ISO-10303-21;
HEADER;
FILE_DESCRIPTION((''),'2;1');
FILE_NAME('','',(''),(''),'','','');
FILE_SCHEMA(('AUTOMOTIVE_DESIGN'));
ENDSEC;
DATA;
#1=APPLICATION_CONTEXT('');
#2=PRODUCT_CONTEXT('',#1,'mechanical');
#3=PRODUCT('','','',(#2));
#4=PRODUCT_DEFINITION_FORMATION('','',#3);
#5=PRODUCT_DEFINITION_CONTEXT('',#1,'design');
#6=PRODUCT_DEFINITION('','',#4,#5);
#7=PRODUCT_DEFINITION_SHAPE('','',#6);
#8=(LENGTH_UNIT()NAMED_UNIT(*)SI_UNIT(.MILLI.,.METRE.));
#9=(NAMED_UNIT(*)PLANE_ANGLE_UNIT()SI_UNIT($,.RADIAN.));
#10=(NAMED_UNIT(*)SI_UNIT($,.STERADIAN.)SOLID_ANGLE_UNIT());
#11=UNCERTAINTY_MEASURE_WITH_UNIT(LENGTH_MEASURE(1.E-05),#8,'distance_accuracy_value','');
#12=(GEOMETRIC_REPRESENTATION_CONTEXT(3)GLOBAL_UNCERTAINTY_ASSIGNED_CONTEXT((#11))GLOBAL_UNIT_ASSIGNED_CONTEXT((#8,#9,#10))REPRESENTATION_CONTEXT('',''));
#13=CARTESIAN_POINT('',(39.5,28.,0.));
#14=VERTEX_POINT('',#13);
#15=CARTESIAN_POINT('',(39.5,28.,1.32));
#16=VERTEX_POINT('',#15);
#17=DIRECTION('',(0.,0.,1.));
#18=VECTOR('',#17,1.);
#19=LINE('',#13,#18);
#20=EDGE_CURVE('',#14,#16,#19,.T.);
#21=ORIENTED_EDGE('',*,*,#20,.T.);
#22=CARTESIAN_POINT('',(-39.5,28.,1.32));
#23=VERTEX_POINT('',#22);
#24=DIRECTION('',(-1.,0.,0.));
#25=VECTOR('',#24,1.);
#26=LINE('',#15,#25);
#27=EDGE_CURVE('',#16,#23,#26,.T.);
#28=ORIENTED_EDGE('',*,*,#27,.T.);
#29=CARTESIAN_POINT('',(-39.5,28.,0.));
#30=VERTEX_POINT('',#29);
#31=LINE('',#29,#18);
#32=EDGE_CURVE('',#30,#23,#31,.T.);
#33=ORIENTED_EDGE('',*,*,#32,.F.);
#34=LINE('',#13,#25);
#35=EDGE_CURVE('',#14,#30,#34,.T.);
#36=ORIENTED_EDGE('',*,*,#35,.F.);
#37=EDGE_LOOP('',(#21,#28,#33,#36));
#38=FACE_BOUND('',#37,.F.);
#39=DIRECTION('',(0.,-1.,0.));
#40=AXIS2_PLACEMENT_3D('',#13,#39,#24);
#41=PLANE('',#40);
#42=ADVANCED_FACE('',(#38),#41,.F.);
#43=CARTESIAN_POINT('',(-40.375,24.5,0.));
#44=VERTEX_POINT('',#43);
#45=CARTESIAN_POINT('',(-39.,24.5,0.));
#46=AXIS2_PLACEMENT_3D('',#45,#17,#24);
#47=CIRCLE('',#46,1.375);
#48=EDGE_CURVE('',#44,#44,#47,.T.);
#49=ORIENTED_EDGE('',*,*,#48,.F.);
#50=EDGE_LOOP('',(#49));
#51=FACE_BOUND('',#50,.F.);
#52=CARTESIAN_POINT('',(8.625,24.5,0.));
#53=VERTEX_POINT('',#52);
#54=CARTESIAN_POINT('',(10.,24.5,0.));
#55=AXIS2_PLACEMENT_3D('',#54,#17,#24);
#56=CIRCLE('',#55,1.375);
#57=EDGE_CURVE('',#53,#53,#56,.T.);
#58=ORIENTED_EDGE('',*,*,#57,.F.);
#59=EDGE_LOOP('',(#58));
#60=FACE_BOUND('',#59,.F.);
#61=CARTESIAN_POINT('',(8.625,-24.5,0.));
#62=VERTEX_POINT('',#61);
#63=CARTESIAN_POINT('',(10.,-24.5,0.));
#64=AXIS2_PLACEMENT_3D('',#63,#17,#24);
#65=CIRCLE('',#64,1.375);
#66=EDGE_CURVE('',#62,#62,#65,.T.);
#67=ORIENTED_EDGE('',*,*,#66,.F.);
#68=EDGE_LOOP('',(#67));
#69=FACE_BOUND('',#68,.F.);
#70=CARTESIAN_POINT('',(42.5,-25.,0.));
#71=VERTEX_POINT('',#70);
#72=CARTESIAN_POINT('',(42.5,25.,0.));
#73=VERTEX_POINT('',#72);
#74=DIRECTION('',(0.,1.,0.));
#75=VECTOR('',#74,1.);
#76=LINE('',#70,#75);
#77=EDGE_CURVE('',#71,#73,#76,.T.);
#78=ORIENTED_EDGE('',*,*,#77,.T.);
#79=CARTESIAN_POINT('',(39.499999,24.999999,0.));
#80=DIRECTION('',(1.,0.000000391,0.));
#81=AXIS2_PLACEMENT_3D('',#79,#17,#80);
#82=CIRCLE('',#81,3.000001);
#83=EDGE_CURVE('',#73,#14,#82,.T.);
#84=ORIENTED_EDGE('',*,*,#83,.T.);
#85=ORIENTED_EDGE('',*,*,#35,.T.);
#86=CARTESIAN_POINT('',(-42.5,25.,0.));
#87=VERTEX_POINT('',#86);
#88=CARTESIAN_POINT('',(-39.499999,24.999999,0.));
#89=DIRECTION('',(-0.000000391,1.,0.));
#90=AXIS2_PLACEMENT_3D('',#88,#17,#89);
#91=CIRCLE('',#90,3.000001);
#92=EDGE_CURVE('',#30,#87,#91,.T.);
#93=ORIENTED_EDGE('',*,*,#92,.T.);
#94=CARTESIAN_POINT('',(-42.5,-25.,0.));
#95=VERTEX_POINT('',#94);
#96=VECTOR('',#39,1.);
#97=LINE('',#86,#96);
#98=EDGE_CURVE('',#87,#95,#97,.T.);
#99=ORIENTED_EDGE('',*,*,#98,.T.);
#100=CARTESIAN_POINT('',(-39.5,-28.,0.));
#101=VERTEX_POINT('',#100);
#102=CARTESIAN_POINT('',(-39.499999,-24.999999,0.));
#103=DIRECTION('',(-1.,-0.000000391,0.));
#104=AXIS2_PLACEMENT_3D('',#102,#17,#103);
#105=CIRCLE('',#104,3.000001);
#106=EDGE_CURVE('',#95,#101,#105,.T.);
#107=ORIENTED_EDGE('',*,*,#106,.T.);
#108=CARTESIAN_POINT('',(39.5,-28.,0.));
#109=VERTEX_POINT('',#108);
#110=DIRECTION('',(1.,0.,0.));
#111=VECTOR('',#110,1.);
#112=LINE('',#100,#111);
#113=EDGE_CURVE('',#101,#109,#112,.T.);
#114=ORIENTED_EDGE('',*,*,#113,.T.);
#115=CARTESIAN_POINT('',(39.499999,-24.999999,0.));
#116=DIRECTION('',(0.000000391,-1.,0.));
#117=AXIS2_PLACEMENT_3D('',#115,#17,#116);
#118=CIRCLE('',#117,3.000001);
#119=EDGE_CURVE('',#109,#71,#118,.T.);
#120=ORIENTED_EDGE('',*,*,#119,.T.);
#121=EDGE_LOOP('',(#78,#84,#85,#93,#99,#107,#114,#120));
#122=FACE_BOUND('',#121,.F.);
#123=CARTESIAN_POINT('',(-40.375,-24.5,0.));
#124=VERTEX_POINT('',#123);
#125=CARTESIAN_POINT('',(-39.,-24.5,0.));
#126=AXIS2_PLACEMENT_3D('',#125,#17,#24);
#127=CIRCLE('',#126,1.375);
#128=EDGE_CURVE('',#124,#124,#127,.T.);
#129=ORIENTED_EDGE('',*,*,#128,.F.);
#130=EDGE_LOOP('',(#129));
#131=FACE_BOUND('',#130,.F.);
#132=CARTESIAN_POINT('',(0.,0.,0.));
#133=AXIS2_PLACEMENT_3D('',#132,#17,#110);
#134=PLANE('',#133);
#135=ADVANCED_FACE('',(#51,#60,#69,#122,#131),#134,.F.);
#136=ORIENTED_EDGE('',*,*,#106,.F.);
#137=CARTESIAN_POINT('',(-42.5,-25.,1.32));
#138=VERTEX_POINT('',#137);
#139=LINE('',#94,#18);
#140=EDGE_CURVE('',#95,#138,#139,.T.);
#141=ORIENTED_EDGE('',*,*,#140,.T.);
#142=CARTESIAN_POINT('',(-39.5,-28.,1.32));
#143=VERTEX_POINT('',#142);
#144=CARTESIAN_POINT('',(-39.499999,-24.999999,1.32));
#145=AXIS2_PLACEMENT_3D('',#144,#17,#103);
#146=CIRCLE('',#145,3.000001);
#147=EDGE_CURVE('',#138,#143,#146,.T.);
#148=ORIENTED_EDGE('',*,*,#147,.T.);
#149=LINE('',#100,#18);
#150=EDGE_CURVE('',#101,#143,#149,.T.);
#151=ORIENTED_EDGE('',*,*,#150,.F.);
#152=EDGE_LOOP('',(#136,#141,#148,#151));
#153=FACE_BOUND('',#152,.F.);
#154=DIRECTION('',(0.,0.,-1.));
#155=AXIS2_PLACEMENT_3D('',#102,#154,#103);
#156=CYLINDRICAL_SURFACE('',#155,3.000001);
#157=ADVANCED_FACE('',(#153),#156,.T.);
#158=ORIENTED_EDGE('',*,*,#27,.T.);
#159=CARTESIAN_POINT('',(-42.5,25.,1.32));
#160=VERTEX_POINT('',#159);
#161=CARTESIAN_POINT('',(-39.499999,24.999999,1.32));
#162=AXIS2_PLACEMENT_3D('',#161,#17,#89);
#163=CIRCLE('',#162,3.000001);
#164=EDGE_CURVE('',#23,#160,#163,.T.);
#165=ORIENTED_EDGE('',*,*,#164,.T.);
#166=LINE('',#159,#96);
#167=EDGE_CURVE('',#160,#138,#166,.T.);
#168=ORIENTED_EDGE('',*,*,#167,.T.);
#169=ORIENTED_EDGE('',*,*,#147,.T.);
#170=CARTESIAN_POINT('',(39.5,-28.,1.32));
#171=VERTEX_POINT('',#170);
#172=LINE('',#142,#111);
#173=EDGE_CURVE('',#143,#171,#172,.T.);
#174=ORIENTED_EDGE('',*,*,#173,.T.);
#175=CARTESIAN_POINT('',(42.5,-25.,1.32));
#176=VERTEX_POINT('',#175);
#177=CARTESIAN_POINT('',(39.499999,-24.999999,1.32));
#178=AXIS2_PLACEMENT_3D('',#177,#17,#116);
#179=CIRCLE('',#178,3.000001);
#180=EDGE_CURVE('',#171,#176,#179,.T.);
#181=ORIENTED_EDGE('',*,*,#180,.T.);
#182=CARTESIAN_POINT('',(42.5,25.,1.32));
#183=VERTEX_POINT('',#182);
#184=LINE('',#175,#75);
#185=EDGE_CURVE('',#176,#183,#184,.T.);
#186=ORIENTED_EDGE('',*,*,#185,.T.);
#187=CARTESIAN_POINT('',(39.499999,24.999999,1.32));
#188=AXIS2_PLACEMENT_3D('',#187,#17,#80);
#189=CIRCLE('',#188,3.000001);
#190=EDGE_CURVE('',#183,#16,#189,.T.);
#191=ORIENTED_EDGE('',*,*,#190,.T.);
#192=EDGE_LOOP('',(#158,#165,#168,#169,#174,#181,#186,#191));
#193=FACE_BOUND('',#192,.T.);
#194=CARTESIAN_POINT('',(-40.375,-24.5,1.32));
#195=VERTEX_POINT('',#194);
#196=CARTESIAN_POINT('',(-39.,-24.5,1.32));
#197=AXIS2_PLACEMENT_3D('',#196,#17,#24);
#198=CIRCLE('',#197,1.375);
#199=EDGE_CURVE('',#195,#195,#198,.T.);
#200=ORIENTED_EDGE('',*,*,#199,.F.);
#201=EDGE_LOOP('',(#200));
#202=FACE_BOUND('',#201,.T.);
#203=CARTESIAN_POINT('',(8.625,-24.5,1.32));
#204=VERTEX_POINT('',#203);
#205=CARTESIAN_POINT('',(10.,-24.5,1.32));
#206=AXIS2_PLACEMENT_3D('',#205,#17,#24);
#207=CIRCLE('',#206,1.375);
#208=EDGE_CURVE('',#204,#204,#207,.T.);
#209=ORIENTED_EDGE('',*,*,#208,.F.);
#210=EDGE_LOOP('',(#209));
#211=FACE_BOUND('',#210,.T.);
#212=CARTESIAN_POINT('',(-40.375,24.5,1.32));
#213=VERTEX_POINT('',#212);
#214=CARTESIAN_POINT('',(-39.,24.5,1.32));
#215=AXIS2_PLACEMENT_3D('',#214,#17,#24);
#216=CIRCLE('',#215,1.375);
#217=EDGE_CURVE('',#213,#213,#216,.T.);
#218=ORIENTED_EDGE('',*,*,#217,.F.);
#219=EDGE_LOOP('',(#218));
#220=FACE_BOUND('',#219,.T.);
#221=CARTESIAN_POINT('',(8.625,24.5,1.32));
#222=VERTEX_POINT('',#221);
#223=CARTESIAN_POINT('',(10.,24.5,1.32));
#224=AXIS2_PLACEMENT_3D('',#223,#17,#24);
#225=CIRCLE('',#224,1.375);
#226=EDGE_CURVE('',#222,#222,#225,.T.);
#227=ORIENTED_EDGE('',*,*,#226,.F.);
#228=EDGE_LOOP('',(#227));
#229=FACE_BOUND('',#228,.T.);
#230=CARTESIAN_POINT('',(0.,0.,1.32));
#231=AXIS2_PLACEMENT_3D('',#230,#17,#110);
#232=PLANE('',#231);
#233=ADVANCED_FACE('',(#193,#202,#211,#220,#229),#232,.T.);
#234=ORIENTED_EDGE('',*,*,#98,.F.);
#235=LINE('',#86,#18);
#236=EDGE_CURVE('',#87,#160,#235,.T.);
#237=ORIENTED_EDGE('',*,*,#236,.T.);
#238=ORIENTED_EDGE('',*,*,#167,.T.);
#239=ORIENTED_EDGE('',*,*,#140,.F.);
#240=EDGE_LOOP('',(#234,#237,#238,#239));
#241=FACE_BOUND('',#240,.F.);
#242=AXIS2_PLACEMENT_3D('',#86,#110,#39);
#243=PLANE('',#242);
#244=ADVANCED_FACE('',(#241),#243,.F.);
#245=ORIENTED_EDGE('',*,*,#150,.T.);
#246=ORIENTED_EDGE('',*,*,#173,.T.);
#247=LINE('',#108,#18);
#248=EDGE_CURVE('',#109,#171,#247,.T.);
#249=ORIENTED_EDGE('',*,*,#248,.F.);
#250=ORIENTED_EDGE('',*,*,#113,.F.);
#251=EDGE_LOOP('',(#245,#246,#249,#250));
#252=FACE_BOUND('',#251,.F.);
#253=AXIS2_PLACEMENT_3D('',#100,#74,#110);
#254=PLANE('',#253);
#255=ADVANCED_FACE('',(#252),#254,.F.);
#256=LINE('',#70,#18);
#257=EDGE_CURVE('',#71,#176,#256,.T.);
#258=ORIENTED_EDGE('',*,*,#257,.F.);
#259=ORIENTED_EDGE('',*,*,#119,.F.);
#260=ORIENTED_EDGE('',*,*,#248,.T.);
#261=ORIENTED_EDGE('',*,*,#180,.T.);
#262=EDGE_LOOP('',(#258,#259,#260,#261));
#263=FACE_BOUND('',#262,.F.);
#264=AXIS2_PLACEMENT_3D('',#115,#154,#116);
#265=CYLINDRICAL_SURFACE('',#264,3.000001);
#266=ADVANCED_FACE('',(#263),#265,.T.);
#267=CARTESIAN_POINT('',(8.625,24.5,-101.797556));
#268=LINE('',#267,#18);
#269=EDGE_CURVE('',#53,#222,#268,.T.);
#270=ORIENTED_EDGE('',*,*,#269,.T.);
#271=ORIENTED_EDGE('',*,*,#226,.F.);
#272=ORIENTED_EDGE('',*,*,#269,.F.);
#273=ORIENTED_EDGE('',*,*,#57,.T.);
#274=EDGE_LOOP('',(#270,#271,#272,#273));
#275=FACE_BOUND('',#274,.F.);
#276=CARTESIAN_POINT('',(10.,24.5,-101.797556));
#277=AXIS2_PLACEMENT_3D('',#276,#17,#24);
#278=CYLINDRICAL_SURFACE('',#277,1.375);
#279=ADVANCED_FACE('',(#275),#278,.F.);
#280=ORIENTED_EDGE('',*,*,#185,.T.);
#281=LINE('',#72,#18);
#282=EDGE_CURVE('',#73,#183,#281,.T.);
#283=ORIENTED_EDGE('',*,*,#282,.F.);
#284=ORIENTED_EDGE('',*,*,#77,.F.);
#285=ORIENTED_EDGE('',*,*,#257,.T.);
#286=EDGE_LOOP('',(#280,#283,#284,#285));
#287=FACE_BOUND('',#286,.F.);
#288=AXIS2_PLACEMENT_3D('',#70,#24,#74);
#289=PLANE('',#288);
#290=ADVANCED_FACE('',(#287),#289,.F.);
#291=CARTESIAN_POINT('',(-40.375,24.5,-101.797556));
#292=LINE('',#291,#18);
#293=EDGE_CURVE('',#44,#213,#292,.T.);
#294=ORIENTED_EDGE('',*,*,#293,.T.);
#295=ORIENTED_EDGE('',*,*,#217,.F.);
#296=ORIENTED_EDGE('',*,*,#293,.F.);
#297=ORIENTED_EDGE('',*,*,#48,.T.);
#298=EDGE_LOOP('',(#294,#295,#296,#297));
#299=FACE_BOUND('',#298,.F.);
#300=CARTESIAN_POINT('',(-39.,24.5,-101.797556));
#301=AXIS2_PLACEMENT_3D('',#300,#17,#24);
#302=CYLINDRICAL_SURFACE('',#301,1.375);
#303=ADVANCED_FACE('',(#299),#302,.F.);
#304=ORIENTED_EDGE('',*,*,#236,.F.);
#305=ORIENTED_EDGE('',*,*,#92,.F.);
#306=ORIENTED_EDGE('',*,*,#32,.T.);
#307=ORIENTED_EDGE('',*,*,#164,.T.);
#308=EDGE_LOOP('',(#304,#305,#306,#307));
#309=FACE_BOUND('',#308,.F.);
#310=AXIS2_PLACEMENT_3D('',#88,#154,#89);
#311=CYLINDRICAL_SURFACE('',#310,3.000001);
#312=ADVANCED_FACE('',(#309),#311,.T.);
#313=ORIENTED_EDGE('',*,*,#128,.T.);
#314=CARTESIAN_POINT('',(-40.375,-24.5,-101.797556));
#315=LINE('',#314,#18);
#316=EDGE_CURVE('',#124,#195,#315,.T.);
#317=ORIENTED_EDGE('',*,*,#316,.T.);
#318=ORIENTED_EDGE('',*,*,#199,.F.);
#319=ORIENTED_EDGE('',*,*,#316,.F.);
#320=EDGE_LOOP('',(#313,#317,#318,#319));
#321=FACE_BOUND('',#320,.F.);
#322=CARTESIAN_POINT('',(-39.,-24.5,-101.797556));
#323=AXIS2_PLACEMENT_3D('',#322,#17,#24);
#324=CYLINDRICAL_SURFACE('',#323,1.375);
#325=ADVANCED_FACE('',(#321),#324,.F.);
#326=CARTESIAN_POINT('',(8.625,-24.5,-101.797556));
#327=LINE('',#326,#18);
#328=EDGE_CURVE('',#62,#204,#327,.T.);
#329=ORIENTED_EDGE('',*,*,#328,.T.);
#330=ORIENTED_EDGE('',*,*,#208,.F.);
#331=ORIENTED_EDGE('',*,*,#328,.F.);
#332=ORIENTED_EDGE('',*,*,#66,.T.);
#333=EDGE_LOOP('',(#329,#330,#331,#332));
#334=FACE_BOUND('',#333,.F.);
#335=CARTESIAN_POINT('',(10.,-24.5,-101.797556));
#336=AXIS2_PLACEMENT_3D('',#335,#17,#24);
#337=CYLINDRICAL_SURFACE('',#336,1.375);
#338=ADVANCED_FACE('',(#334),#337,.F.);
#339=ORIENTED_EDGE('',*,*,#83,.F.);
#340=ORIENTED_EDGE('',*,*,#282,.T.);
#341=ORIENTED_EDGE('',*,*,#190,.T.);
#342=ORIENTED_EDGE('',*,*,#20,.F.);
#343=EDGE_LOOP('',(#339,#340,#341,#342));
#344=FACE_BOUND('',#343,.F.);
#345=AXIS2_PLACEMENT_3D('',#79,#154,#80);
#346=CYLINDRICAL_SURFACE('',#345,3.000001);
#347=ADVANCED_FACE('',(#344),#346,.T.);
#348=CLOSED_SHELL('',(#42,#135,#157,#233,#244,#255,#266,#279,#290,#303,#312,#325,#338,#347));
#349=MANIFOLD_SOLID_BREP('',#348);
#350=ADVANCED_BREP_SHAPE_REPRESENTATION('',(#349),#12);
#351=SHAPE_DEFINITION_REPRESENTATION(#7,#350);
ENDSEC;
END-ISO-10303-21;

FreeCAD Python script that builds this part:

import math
import FreeCAD as App
import Part
import Sketcher
from FreeCAD import Vector
Q = App.Units.Quantity

doc = App.newDocument("Part")
body = doc.addObject("PartDesign::Body", "Body")

# Sketch on XY plane
sketch1 = body.newObject("Sketcher::SketchObject", "Sketch")
sketch1.AttachmentSupport = (doc.getObject("XY_Plane"), [""])
sketch1.MapMode = "FlatFace"
sketch1.addGeometry([
    Part.ArcOfCircle(Part.Circle(Vector(39.5, 25, 0), Vector(0, 0, 1), 3), math.radians(0), math.radians(90)),  # 0
    Part.LineSegment(Vector(39.5, 28, 0), Vector(-39.5, 28, 0)),  # 1
    Part.ArcOfCircle(Part.Circle(Vector(-39.5, 25, 0), Vector(0, 0, 1), 3), math.radians(90), math.radians(180)),  # 2
    Part.LineSegment(Vector(-42.5, 25, 0), Vector(-42.5, -25, 0)),  # 3
    Part.ArcOfCircle(Part.Circle(Vector(-39.5, -25, 0), Vector(0, 0, 1), 3), math.radians(-180), math.radians(-90)),  # 4
    Part.LineSegment(Vector(-39.5, -28, 0), Vector(39.5, -28, 0)),  # 5
    Part.ArcOfCircle(Part.Circle(Vector(39.5, -25, 0), Vector(0, 0, 1), 3), math.radians(-90), math.radians(0)),  # 6
    Part.LineSegment(Vector(42.5, -25, 0), Vector(42.5, 25, 0)),  # 7
], False)
sketch1.addConstraint([
    Sketcher.Constraint("Tangent", 0, 2, 1, 1),
    Sketcher.Constraint("Tangent", 1, 2, 2, 1),
    Sketcher.Constraint("Tangent", 2, 2, 3, 1),
    Sketcher.Constraint("Tangent", 3, 2, 4, 1),
    Sketcher.Constraint("Tangent", 4, 2, 5, 1),
    Sketcher.Constraint("Tangent", 5, 2, 6, 1),
    Sketcher.Constraint("Tangent", 6, 2, 7, 1),
    Sketcher.Constraint("Tangent", 7, 2, 0, 1),
    Sketcher.Constraint("Horizontal", 1),
    Sketcher.Constraint("Vertical", 3),
    Sketcher.Constraint("Horizontal", 5),
    Sketcher.Constraint("Vertical", 7),
    Sketcher.Constraint("Equal", 0, 2),
    Sketcher.Constraint("Equal", 2, 4),
    Sketcher.Constraint("Equal", 4, 6),
    Sketcher.Constraint("Symmetric", 0, 3, 4, 3, -1, 1),
    Sketcher.Constraint("Radius", 0, Q("3.000001 mm")),
    Sketcher.Constraint("DistanceX", 1, 2, 1, 1, Q("79 mm")),
    Sketcher.Constraint("DistanceY", 3, 2, 3, 1, Q("50 mm")),
])
pad1 = body.newObject("PartDesign::Pad", "Pad")
pad1.Profile = sketch1
pad1.Length = 1.32

# Sketch on XY plane
sketch2 = body.newObject("Sketcher::SketchObject", "Sketch001")
sketch2.AttachmentSupport = (doc.getObject("XY_Plane"), [""])
sketch2.MapMode = "FlatFace"
sketch2.addGeometry([
    Part.Circle(Vector(-39, -24.5, 0), Vector(0, 0, 1), 1.4),
    Part.Circle(Vector(10, -24.5, 0), Vector(0, 0, 1), 1.4),
    Part.Circle(Vector(10, 24.5, 0), Vector(0, 0, 1), 1.4),
    Part.Circle(Vector(-39, 24.5, 0), Vector(0, 0, 1), 1.4),
], False)
sketch2.addConstraint([
    Sketcher.Constraint("Equal", 0, 1),
    Sketcher.Constraint("Equal", 1, 2),
    Sketcher.Constraint("Equal", 2, 3),
    Sketcher.Constraint("Symmetric", 1, 3, 2, 3, -1),
    Sketcher.Constraint("Symmetric", 0, 3, 3, 3, -1),
    Sketcher.Constraint("Horizontal", 0, 3, 1, 3),
    Sketcher.Constraint("Diameter", 0, Q("2.75 mm")),
    Sketcher.Constraint("DistanceX", 0, 3, -1, 1, Q("39 mm")),
    Sketcher.Constraint("DistanceX", -1, 1, 1, 3, Q("10 mm")),
    Sketcher.Constraint("DistanceY", 1, 3, 2, 3, Q("49 mm")),
])
doc.recompute()
hole = body.newObject("PartDesign::Hole", "Hole")
hole.Profile = sketch2
hole.ThreadType = "None"
hole.Diameter = 2.75
hole.DepthType = "ThroughAll"
hole.Reversed = True

doc.recompute()
